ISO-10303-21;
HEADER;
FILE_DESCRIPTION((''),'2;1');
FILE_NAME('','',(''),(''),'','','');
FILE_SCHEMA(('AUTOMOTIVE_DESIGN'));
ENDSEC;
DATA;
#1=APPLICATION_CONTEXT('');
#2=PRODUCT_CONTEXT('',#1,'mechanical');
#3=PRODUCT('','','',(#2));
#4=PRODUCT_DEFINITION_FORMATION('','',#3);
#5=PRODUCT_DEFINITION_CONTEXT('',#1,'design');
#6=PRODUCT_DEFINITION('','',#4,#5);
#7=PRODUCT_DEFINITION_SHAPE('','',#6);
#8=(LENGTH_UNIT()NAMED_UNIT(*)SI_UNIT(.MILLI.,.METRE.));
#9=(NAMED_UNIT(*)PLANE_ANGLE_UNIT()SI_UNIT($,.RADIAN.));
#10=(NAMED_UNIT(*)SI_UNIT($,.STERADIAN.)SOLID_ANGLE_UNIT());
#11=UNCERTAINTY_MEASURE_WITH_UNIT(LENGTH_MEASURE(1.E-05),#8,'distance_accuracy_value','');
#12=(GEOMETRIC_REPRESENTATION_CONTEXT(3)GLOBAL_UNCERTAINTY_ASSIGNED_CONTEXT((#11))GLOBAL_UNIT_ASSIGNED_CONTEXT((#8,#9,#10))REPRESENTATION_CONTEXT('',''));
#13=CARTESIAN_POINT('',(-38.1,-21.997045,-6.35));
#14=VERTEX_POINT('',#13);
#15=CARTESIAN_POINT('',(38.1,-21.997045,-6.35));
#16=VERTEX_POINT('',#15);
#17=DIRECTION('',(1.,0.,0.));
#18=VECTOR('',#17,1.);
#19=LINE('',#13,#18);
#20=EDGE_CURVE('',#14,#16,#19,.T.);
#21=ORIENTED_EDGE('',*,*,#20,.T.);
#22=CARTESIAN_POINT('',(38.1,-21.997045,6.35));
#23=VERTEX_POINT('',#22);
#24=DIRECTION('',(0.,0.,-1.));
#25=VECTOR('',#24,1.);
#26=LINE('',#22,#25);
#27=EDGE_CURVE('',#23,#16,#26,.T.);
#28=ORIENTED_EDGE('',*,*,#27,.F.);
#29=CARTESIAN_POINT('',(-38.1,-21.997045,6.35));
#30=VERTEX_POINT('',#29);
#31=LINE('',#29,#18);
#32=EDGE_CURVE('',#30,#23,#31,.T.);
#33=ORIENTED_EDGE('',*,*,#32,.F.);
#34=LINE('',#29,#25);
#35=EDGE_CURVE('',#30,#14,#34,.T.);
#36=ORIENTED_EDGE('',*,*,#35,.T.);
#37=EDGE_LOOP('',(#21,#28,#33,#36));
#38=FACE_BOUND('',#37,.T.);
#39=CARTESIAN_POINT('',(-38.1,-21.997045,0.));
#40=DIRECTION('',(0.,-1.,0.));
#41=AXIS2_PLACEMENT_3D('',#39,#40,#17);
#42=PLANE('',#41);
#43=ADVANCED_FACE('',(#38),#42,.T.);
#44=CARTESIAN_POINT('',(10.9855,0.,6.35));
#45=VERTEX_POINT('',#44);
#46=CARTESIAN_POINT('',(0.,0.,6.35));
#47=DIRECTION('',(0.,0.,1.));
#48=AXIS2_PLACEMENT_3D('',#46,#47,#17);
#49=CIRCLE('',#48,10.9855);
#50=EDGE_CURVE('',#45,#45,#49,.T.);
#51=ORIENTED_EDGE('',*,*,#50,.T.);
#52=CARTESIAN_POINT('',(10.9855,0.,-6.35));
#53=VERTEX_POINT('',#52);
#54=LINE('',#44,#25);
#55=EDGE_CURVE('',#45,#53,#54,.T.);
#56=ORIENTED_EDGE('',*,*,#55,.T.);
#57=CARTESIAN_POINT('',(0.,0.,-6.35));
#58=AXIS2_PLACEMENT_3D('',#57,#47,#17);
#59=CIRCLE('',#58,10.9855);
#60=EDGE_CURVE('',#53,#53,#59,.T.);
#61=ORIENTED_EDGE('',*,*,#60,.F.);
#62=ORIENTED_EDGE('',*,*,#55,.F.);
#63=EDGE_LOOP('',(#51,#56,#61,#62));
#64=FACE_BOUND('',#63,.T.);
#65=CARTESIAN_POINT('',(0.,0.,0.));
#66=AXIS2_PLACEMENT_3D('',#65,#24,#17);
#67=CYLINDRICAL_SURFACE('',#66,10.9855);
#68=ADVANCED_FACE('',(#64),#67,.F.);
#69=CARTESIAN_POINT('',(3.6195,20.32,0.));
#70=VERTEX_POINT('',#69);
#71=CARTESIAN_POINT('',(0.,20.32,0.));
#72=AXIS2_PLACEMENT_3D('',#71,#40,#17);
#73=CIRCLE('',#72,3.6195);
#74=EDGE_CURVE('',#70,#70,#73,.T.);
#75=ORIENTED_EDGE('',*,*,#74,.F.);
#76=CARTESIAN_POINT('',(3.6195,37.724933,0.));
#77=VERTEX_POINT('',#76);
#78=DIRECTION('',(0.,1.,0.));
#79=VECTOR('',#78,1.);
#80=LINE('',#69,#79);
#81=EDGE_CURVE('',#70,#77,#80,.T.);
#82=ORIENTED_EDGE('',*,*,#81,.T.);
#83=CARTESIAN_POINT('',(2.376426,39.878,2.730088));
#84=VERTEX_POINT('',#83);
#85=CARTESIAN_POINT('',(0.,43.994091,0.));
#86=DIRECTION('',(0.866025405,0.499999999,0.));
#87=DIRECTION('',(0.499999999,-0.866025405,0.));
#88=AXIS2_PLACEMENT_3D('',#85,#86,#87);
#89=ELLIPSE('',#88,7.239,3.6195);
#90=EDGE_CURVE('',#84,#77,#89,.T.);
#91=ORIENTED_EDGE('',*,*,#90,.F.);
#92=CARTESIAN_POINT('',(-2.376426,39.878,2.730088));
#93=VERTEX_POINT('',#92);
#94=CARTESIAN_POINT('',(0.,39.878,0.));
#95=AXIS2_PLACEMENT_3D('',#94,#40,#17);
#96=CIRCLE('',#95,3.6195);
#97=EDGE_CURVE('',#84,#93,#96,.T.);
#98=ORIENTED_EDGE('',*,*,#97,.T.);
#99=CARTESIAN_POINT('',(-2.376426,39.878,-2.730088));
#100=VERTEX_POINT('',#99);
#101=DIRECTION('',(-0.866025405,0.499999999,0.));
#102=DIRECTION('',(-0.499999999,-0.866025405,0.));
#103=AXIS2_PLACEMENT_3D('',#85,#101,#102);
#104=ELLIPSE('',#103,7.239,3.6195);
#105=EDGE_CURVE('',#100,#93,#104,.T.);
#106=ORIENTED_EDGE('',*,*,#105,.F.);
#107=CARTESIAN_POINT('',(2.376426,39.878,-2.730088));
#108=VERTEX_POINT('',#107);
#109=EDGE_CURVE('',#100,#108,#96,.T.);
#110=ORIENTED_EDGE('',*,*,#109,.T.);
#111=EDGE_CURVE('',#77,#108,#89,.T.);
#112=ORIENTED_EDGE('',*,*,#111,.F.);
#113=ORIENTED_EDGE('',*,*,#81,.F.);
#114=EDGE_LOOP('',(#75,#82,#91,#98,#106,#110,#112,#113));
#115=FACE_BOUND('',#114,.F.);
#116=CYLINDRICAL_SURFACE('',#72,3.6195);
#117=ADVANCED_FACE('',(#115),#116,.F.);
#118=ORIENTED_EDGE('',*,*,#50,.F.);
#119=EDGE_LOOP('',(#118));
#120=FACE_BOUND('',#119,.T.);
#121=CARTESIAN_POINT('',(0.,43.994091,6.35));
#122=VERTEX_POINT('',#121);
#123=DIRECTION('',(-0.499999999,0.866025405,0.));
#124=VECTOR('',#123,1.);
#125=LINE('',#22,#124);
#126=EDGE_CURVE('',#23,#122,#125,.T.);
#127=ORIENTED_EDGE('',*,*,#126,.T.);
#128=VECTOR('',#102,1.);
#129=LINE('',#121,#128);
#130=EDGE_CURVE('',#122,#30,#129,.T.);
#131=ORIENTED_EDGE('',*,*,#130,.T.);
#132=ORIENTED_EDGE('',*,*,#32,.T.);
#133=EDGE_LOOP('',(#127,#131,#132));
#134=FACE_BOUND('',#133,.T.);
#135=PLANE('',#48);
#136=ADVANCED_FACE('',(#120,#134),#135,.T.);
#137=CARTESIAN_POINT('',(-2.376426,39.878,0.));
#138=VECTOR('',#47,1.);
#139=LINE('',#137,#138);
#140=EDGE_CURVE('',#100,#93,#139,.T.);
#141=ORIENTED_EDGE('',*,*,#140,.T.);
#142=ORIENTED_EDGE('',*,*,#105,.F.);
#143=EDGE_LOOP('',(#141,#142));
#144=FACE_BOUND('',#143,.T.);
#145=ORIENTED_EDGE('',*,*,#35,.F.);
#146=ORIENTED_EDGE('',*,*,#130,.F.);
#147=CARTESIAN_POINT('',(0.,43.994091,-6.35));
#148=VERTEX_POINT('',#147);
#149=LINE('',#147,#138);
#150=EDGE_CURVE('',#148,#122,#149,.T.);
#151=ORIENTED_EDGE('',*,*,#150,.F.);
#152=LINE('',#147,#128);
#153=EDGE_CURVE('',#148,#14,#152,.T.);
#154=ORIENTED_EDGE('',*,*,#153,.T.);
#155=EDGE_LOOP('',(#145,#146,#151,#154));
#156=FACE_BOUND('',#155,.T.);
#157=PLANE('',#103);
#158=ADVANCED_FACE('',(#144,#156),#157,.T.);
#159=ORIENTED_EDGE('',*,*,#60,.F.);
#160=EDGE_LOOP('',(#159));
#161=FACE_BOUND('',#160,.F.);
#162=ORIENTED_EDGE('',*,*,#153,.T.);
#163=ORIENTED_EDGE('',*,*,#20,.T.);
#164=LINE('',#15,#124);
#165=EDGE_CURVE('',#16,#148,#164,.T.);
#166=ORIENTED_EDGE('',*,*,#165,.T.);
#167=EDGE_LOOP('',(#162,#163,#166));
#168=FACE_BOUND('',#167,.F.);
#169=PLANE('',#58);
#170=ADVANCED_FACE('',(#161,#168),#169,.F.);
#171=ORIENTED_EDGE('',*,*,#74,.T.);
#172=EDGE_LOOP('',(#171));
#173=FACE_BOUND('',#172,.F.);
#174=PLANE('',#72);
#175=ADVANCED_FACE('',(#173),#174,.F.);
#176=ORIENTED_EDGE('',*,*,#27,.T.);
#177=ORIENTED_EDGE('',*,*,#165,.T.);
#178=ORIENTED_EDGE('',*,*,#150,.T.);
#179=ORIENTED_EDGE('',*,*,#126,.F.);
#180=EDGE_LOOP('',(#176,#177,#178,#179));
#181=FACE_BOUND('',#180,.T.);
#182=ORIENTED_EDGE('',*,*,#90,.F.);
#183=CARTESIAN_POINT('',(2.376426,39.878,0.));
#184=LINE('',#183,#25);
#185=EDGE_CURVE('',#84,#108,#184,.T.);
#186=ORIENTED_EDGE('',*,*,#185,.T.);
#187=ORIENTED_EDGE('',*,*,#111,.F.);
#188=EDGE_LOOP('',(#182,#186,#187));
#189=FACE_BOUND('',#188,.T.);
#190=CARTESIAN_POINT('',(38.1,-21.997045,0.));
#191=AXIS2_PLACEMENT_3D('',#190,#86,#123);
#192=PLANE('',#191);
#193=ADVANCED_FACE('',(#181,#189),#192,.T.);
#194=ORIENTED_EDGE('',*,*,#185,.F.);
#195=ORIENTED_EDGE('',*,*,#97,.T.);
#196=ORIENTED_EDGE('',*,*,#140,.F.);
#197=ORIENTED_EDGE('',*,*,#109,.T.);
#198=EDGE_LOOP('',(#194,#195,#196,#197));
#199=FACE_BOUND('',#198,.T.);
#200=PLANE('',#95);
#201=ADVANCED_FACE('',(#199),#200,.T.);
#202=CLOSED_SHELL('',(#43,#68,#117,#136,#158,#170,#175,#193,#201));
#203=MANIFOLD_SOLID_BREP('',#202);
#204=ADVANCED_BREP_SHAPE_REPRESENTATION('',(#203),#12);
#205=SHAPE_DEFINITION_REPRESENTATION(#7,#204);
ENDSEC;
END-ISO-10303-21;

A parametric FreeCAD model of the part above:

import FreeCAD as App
import Part
import Sketcher
from FreeCAD import Vector
Q = App.Units.Quantity


def add_polygon(sketch, points):
    """Adds a closed chain of lines whose ends are joined by coincident constraints."""
    first, n = sketch.GeometryCount, len(points)
    for a, b in zip(points, points[1:] + points[:1]):
        sketch.addGeometry(Part.LineSegment(App.Vector(*a, 0), App.Vector(*b, 0)), False)
    for i in range(n):
        sketch.addConstraint(Sketcher.Constraint("Coincident", first + i, 2, first + (i + 1) % n, 1))

doc = App.newDocument("Part")
body = doc.addObject("PartDesign::Body", "Body")

# Sketch on XY plane
sketch1 = body.newObject("Sketcher::SketchObject", "Sketch")
sketch1.AttachmentSupport = (doc.getObject("XY_Plane"), [""])
sketch1.MapMode = "FlatFace"
add_polygon(sketch1, [(38, -22), (0, 44), (-38, -22)])  # lines 0-2
sketch1.addGeometry(Part.Circle(Vector(0, 0, 0), Vector(0, 0, 1), 11), False)  # 3
sketch1.addConstraint(Sketcher.Constraint("Horizontal", 2))
sketch1.addConstraint(Sketcher.Constraint("Coincident", 3, 3, -1, 1))
sketch1.addConstraint(Sketcher.Constraint("PointOnObject", 0, 2, -2))
sketch1.addConstraint(Sketcher.Constraint("Equal", 0, 1))
sketch1.addConstraint(Sketcher.Constraint("DistanceX", 2, 1, 2, 2, Q("3 in")))
sketch1.addConstraint(Sketcher.Constraint("Distance", 0, Q("3 in")))
sketch1.addConstraint(Sketcher.Constraint("Diameter", 3, Q("0.865 in")))
sketch1.addConstraint(Sketcher.Constraint("DistanceY", -1, 1, 0, 2, Q("43.994091 mm")))
pad1 = body.newObject("PartDesign::Pad", "Pad")
pad1.Profile = sketch1
pad1.Length = Q("0.5 in")
pad1.Midplane = True

# Sketch on XZ plane
sketch2 = body.newObject("Sketcher::SketchObject", "Sketch001")
sketch2.AttachmentSupport = (doc.getObject("XZ_Plane"), [""])
sketch2.MapMode = "FlatFace"
sketch2.AttachmentOffset = App.Placement(Vector(0, 0, -0.8 * 25.4), App.Rotation())
sketch2.addGeometry(Part.Circle(Vector(0, 0, 0), Vector(0, 0, 1), 3.6), False)
sketch2.addConstraint(Sketcher.Constraint("Coincident", 0, 3, -1, 1))
sketch2.addConstraint(Sketcher.Constraint("Diameter", 0, Q("0.285 in")))
pocket1 = body.newObject("PartDesign::Pocket", "Pocket")
pocket1.Profile = sketch2
pocket1.Length = Q("0.77 in")

doc.recompute()
